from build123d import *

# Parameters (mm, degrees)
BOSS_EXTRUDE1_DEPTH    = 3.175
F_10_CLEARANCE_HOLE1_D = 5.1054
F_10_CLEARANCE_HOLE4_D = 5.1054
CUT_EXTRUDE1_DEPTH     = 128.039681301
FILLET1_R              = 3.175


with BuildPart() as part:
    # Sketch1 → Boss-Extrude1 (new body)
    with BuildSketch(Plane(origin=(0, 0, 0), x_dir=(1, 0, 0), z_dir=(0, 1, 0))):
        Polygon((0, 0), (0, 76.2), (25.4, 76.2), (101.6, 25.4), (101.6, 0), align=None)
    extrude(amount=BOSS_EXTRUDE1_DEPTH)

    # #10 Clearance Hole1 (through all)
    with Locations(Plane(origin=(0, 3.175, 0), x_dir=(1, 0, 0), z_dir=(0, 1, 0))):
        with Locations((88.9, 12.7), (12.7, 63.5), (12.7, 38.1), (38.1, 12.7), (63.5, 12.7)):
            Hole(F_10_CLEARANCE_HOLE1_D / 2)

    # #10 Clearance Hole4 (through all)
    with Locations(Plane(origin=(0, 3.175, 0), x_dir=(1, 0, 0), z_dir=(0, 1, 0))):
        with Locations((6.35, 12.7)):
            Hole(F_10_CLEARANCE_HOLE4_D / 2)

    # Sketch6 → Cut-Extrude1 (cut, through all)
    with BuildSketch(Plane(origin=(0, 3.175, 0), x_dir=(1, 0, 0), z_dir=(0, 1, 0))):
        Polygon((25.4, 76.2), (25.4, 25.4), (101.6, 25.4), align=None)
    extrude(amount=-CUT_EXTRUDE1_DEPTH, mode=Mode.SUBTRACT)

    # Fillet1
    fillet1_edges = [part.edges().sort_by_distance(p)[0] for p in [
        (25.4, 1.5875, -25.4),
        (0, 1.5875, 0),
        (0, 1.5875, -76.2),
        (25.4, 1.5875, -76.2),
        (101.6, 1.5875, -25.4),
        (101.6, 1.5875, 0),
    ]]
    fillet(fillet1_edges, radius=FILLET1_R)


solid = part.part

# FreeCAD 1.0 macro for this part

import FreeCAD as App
import Part
import Sketcher

V = App.Vector
Q = App.Units.Quantity


def edges_at(feature, points):
    """Names of the edges that pass closest to the given points."""
    edges = feature.Shape.Edges
    near = lambda p: min(range(len(edges)), key=lambda i: edges[i].distToShape(Part.Vertex(*p))[0])
    return sorted({f"Edge{near(p) + 1}" for p in points})

doc = App.newDocument("Part")
params = doc.addObject("Spreadsheet::Sheet", "Params")
for row, (alias, value) in enumerate([
    ("sketch1_width", "4 in"),
    ("sketch1_width2", "1 in"),
    ("sketch1_height", "3 in"),
    ("pad1_length", "0.125 in"),
    ("sketch2_diameter", "0.201 in"),
    ("hole_diameter", "0.201 in"),
    ("sketch3_diameter", "0.201 in"),
    ("hole2_diameter", "0.201 in"),
    ("sketch4_width", "3 in"),
    ("sketch4_height", "2 in"),
    ("fillet_radius", "0.125 in"),
], start=1):
    params.set(f"A{row}", alias)
    params.set(f"B{row}", "=" + value)
    params.setAlias(f"B{row}", alias)

body = doc.addObject("PartDesign::Body", "Body")

sketch1 = body.newObject("Sketcher::SketchObject", "Sketch")
sketch1.AttachmentSupport = (doc.getObject("XZ_Plane"), [""])
sketch1.MapMode = "FlatFace"
sketch1.addGeometry(Part.LineSegment(V(0, -76, 0), V(0, 0, 0)), False)
sketch1.addGeometry(Part.LineSegment(V(0, 0, 0), V(102, 0, 0)), False)
sketch1.addGeometry(Part.LineSegment(V(102, 0, 0), V(102, -25, 0)), False)
sketch1.addGeometry(Part.LineSegment(V(102, -25, 0), V(25, -76, 0)), False)
sketch1.addGeometry(Part.LineSegment(V(25, -76, 0), V(0, -76, 0)), False)
sketch1.addConstraint(Sketcher.Constraint("Coincident", 0, 2, 1, 1))
sketch1.addConstraint(Sketcher.Constraint("Coincident", 1, 2, 2, 1))
sketch1.addConstraint(Sketcher.Constraint("Coincident", 2, 2, 3, 1))
sketch1.addConstraint(Sketcher.Constraint("Coincident", 3, 2, 4, 1))
sketch1.addConstraint(Sketcher.Constraint("Coincident", 4, 2, 0, 1))
sketch1.addConstraint(Sketcher.Constraint("Vertical", 0))
sketch1.addConstraint(Sketcher.Constraint("Horizontal", 1))
sketch1.addConstraint(Sketcher.Constraint("Vertical", 2))
sketch1.addConstraint(Sketcher.Constraint("Horizontal", 4))
sketch1.addConstraint(Sketcher.Constraint("Coincident", 0, 2, -1, 1))
sketch1.addConstraint(Sketcher.Constraint("Equal", 4, 2))
sketch1.addConstraint(Sketcher.Constraint("DistanceX", 1, 1, 1, 2, Q("4 in")))
sketch1.addConstraint(Sketcher.Constraint("DistanceX", 4, 2, 4, 1, Q("1 in")))
sketch1.addConstraint(Sketcher.Constraint("DistanceY", 0, 1, 0, 2, Q("3 in")))
sketch1.setExpression("Constraints[11]", "Params.sketch1_width")
sketch1.setExpression("Constraints[12]", "Params.sketch1_width2")
sketch1.setExpression("Constraints[13]", "Params.sketch1_height")
pad1 = body.newObject("PartDesign::Pad", "Pad")
pad1.Profile = sketch1
pad1.setExpression("Length", "Params.pad1_length")
pad1.Reversed = True

sketch2 = body.newObject("Sketcher::SketchObject", "Sketch001")
sketch2.AttachmentSupport = (doc.getObject("XZ_Plane"), [""])
sketch2.MapMode = "FlatFace"
sketch2.AttachmentOffset = App.Placement(V(0, 0, -0.125 * 25.4), App.Rotation())
sketch2.addGeometry(Part.Circle(V(88.9, -12.7, 0), V(0, 0, 1), 2.6), False)
sketch2.addGeometry(Part.Circle(V(12.7, -63.5, 0), V(0, 0, 1), 2.6), False)
sketch2.addGeometry(Part.Circle(V(12.7, -38.1, 0), V(0, 0, 1), 2.6), False)
sketch2.addGeometry(Part.Circle(V(38.1, -12.7, 0), V(0, 0, 1), 2.6), False)
sketch2.addGeometry(Part.Circle(V(63.5, -12.7, 0), V(0, 0, 1), 2.6), False)
sketch2.addConstraint(Sketcher.Constraint("Equal", 0, 1))
sketch2.addConstraint(Sketcher.Constraint("Equal", 1, 2))
sketch2.addConstraint(Sketcher.Constraint("Equal", 2, 3))
sketch2.addConstraint(Sketcher.Constraint("Equal", 3, 4))
sketch2.addConstraint(Sketcher.Constraint("Horizontal", 0, 3, 3, 3))
sketch2.addConstraint(Sketcher.Constraint("Horizontal", 3, 3, 4, 3))
sketch2.addConstraint(Sketcher.Constraint("Vertical", 1, 3, 2, 3))
sketch2.addConstraint(Sketcher.Constraint("Diameter", 0, Q("0.201 in")))
sketch2.addConstraint(Sketcher.Constraint("DistanceX", 1, 3, 0, 3, Q("3 in")))
sketch2.addConstraint(Sketcher.Constraint("DistanceY", 1, 3, 0, 3, Q("2 in")))
sketch2.addConstraint(Sketcher.Constraint("DistanceY", 1, 3, 2, 3, Q("1 in")))
sketch2.addConstraint(Sketcher.Constraint("DistanceX", 2, 3, 3, 3, Q("1 in")))
sketch2.addConstraint(Sketcher.Constraint("DistanceX", 3, 3, 4, 3, Q("1 in")))
sketch2.addConstraint(Sketcher.Constraint("DistanceX", -1, 1, 0, 3, Q("3.5 in")))
sketch2.addConstraint(Sketcher.Constraint("DistanceY", 0, 3, -1, 1, Q("0.5 in")))
sketch2.setExpression("Constraints[7]", "Params.sketch2_diameter")
doc.recompute()
hole = body.newObject("PartDesign::Hole", "Hole")
hole.Profile = sketch2
hole.ThreadType = "None"
hole.setExpression("Diameter", "Params.hole_diameter")
hole.DepthType = "ThroughAll"
hole.Reversed = True

sketch3 = body.newObject("Sketcher::SketchObject", "Sketch002")
sketch3.AttachmentSupport = (doc.getObject("XZ_Plane"), [""])
sketch3.MapMode = "FlatFace"
sketch3.AttachmentOffset = App.Placement(V(0, 0, -0.125 * 25.4), App.Rotation())
sketch3.addGeometry(Part.Circle(V(6.3, -12.7, 0), V(0, 0, 1), 2.6), False)
sketch3.addConstraint(Sketcher.Constraint("Diameter", 0, Q("0.201 in")))
sketch3.addConstraint(Sketcher.Constraint("DistanceY", 0, 3, -1, 1, Q("0.5 in")))
sketch3.addConstraint(Sketcher.Constraint("DistanceX", -1, 1, 0, 3, Q("0.25 in")))
sketch3.setExpression("Constraints[0]", "Params.sketch3_diameter")
doc.recompute()
hole2 = body.newObject("PartDesign::Hole", "Hole001")
hole2.Profile = sketch3
hole2.ThreadType = "None"
hole2.setExpression("Diameter", "Params.hole2_diameter")
hole2.DepthType = "ThroughAll"
hole2.Reversed = True

sketch4 = body.newObject("Sketcher::SketchObject", "Sketch003")
sketch4.AttachmentSupport = (doc.getObject("XZ_Plane"), [""])
sketch4.MapMode = "FlatFace"
sketch4.AttachmentOffset = App.Placement(V(0, 0, -0.125 * 25.4), App.Rotation())
sketch4.addGeometry(Part.LineSegment(V(25, -76, 0), V(25, -25, 0)), False)
sketch4.addGeometry(Part.LineSegment(V(25, -25, 0), V(102, -25, 0)), False)
sketch4.addGeometry(Part.LineSegment(V(102, -25, 0), V(25, -76, 0)), False)
sketch4.addConstraint(Sketcher.Constraint("Coincident", 0, 2, 1, 1))
sketch4.addConstraint(Sketcher.Constraint("Coincident", 1, 2, 2, 1))
sketch4.addConstraint(Sketcher.Constraint("Coincident", 2, 2, 0, 1))
sketch4.addConstraint(Sketcher.Constraint("Vertical", 0))
sketch4.addConstraint(Sketcher.Constraint("Horizontal", 1))
sketch4.addConstraint(Sketcher.Constraint("DistanceX", 1, 1, 1, 2, Q("3 in")))
sketch4.addConstraint(Sketcher.Constraint("DistanceY", 0, 1, 0, 2, Q("2 in")))
sketch4.addConstraint(Sketcher.Constraint("DistanceX", -1, 1, 0, 2, Q("1 in")))
sketch4.addConstraint(Sketcher.Constraint("DistanceY", 0, 2, -1, 1, Q("1 in")))
sketch4.setExpression("Constraints[5]", "Params.sketch4_width")
sketch4.setExpression("Constraints[6]", "Params.sketch4_height")
pocket1 = body.newObject("PartDesign::Pocket", "Pocket")
pocket1.Profile = sketch4
pocket1.Type = "ThroughAll"
pocket1.Reversed = True
doc.recompute()

fillet = body.newObject("PartDesign::Fillet", "Fillet")
fillet.Base = (pocket1, edges_at(pocket1, [
    (25.4, 1.587, -25.4),
    (0, 1.587, 0),
    (0, 1.587, -76.2),
    (25.4, 1.587, -76.2),
    (101.6, 1.587, -25.4),
    (101.6, 1.587, 0),
]))
fillet.setExpression("Radius", "Params.fillet_radius")

doc.recompute()
